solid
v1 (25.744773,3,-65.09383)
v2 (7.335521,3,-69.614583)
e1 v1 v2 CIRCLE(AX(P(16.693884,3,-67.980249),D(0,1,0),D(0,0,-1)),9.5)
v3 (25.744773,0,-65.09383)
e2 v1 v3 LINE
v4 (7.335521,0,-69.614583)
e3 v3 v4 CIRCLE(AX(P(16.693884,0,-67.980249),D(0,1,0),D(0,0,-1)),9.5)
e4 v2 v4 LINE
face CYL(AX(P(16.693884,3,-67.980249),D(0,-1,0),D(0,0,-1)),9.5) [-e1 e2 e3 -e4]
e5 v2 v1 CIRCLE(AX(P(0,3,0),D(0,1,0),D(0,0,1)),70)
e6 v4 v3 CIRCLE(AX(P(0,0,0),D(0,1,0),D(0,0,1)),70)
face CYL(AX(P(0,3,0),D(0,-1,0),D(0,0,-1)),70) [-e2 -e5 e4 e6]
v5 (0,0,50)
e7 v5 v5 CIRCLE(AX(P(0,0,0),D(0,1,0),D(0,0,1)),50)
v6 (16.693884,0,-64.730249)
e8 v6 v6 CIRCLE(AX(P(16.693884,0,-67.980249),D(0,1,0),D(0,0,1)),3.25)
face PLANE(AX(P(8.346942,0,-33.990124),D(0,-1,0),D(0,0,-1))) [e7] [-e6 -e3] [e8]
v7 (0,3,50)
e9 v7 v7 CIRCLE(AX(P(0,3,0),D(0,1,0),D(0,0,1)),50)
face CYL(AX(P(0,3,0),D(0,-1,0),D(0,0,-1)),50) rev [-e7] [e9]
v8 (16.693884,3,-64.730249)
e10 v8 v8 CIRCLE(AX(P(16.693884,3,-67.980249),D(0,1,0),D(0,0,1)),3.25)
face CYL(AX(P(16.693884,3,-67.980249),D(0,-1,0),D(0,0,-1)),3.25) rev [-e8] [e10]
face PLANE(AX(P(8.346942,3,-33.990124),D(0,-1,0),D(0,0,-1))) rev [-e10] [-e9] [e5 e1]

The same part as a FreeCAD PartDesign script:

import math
import FreeCAD as App
import Part
import Sketcher

V = App.Vector
Q = App.Units.Quantity

doc = App.newDocument("Part")
body = doc.addObject("PartDesign::Body", "Body")

sketch1 = body.newObject("Sketcher::SketchObject", "Sketch")
sketch1.AttachmentSupport = (doc.getObject("XZ_Plane"), [""])
sketch1.MapMode = "FlatFace"
sketch1.addGeometry(Part.ArcOfCircle(Part.Circle(V(0, 0, 0), V(0, 0, 1), 70), math.radians(-68.421079), math.radians(276.01525)), False)
sketch1.addGeometry(Part.ArcOfCircle(Part.Circle(V(16.693884, -67.980249, 0), V(0, 0, 1), 9.5), math.radians(-170.093832), math.radians(17.688003)), False)
sketch1.addGeometry(Part.Circle(V(0, 0, 0), V(0, 0, 1), 50), False)
sketch1.addGeometry(Part.Circle(V(16.693884, -67.980249, 0), V(0, 0, 1), 3.25), False)
sketch1.addConstraint(Sketcher.Constraint("Coincident", 0, 1, 1, 2))
sketch1.addConstraint(Sketcher.Constraint("Coincident", 1, 1, 0, 2))
sketch1.addConstraint(Sketcher.Constraint("Coincident", 0, 3, -1, 1))
sketch1.addConstraint(Sketcher.Constraint("Coincident", 2, 3, -1, 1))
sketch1.addConstraint(Sketcher.Constraint("Coincident", 3, 3, 1, 3))
sketch1.addConstraint(Sketcher.Constraint("Diameter", 2, Q("100 mm")))
sketch1.addConstraint(Sketcher.Constraint("Radius", 0, Q("70 mm")))
sketch1.addConstraint(Sketcher.Constraint("Diameter", 3, Q("6.5 mm")))
sketch1.addConstraint(Sketcher.Constraint("Radius", 1, Q("9.5 mm")))
sketch1.addConstraint(Sketcher.Constraint("DistanceY", 1, 3, -1, 1, Q("67.980249 mm")))
sketch1.addConstraint(Sketcher.Constraint("DistanceY", 0, 1, -1, 1, Q("65.09383 mm")))
pad1 = body.newObject("PartDesign::Pad", "Pad")
pad1.Profile = sketch1
pad1.Length = 3
pad1.Reversed = True

doc.recompute()
